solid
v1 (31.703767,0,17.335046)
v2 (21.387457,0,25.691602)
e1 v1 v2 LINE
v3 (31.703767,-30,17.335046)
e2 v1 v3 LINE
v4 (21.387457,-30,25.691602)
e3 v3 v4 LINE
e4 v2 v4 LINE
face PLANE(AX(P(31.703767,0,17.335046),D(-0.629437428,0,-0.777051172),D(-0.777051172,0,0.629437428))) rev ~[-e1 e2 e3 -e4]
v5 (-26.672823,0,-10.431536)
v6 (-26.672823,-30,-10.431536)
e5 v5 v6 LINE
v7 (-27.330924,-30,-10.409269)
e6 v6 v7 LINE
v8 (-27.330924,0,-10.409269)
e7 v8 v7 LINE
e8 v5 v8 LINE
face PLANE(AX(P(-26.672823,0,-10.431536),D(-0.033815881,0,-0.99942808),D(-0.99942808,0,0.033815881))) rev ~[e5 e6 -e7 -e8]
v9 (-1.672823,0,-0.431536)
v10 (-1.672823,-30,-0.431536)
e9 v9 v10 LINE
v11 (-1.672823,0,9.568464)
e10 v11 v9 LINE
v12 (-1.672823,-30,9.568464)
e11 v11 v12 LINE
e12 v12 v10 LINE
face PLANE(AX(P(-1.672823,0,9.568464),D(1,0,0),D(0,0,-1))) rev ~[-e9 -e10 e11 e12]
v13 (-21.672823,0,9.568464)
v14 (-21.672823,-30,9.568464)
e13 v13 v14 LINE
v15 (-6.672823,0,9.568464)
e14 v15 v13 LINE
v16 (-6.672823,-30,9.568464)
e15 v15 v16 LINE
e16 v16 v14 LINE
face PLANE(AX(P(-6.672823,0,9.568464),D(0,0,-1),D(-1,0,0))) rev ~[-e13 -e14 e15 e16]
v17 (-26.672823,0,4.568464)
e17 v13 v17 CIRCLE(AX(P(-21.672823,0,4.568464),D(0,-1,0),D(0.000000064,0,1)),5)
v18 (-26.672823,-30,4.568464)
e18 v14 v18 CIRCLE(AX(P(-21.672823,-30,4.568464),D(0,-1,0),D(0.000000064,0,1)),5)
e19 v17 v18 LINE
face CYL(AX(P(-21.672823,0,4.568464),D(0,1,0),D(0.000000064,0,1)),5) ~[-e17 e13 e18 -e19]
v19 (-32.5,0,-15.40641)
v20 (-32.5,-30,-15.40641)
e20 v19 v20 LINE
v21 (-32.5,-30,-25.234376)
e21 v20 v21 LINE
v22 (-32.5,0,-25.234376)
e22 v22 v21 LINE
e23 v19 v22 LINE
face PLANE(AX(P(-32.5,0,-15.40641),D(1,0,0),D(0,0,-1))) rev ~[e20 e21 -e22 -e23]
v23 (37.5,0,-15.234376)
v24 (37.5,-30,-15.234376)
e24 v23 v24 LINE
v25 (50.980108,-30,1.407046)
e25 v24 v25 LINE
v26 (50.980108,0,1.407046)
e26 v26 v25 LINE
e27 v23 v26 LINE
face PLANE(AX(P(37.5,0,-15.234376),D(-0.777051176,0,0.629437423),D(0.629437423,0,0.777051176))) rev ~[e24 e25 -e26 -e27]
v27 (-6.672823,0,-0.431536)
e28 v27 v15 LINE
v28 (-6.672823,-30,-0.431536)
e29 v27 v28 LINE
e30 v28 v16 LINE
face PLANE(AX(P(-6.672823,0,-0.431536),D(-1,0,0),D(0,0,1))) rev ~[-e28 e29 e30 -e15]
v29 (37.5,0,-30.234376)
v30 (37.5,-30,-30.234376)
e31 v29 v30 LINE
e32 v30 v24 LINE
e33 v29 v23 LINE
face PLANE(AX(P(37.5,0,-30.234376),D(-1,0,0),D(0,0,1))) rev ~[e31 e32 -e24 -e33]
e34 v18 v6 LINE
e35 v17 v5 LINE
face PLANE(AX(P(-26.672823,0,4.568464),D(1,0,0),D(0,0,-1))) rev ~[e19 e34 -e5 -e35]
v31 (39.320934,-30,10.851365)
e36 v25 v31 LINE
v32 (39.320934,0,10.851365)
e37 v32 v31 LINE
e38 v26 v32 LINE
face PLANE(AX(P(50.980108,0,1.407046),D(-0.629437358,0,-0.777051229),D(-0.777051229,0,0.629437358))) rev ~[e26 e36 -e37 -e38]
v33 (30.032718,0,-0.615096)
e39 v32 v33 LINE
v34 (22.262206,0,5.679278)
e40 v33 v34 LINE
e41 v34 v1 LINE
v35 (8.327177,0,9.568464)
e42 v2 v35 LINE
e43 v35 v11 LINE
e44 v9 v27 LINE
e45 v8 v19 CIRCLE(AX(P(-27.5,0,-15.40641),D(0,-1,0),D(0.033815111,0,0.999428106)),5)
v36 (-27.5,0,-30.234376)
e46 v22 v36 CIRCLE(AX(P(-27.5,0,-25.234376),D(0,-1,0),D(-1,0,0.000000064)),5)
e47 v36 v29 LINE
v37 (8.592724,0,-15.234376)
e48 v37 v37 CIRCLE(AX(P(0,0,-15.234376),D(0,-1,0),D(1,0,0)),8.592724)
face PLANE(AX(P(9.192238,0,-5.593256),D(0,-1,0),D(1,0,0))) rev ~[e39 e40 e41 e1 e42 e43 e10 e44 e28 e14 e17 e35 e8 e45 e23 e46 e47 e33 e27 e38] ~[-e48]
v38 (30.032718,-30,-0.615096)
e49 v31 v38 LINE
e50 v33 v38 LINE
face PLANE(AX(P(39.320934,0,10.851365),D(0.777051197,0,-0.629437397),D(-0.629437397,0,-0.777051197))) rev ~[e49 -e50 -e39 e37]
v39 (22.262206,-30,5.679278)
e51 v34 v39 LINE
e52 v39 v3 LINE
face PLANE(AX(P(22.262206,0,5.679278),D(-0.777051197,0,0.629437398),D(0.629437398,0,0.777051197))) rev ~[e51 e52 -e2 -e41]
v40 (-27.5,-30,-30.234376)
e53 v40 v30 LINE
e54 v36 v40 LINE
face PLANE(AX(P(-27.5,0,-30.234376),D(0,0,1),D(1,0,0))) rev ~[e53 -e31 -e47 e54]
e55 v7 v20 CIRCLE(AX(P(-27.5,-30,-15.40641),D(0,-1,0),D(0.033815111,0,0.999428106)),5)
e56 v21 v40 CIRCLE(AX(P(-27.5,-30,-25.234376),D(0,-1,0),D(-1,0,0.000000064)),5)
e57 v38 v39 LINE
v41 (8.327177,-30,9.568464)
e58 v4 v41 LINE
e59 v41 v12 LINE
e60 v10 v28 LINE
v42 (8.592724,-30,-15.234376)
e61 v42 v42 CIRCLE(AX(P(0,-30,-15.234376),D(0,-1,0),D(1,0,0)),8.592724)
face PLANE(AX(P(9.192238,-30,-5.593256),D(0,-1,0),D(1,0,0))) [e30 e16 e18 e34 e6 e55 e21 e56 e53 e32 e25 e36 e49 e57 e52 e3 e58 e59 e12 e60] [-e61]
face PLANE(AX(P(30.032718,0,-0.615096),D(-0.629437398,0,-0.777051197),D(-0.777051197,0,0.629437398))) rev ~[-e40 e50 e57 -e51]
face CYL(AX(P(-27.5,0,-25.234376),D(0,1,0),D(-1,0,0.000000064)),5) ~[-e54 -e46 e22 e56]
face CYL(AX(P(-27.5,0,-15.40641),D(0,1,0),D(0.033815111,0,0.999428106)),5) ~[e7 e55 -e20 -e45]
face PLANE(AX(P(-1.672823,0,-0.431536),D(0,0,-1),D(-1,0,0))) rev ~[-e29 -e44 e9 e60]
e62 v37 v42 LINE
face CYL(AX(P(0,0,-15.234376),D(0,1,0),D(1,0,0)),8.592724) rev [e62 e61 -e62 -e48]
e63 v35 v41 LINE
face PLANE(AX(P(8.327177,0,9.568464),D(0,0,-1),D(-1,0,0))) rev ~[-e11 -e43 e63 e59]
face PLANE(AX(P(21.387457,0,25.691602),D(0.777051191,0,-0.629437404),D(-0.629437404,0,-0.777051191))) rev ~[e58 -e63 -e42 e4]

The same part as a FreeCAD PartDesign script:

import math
import FreeCAD as App
import Part
import Sketcher

V = App.Vector
Q = App.Units.Quantity

doc = App.newDocument("Part")
params = doc.addObject("Spreadsheet::Sheet", "Params")
for row, (alias, value) in enumerate([
    ("sketch1_radius", "5 mm"),
    ("sketch1_width", "65 mm"),
    ("sketch1_width2", "10 mm"),
    ("sketch1_width3", "5 mm"),
    ("sketch1_width4", "15 mm"),
    ("pad1_length", "30 mm"),
], start=1):
    params.set(f"A{row}", alias)
    params.set(f"B{row}", "=" + value)
    params.setAlias(f"B{row}", alias)

body = doc.addObject("PartDesign::Body", "Body")

# Sketch on XZ plane
sketch1 = body.newObject("Sketcher::SketchObject", "Sketch")
sketch1.AttachmentSupport = (doc.getObject("XZ_Plane"), [""])
sketch1.MapMode = "FlatFace"
sketch1.addGeometry(Part.ArcOfCircle(Part.Circle(V(-27.5, -25.2, 0), V(0, 0, 1), 5), math.radians(180), math.radians(270)), False)
sketch1.addGeometry(Part.LineSegment(V(-27.5, -30.2, 0), V(37.5, -30.2, 0)), False)
sketch1.addGeometry(Part.LineSegment(V(37.5, -30.2, 0), V(37.5, -15.2, 0)), False)
sketch1.addGeometry(Part.LineSegment(V(37.5, -15.2, 0), V(51, 1.4, 0)), False)
sketch1.addGeometry(Part.LineSegment(V(51, 1.4, 0), V(39.3, 10.9, 0)), False)
sketch1.addGeometry(Part.LineSegment(V(39.3, 10.9, 0), V(30, -0.6, 0)), False)
sketch1.addGeometry(Part.LineSegment(V(30, -0.6, 0), V(22.3, 5.7, 0)), False)
sketch1.addGeometry(Part.LineSegment(V(22.3, 5.7, 0), V(31.7, 17.3, 0)), False)
sketch1.addGeometry(Part.LineSegment(V(31.7, 17.3, 0), V(21.4, 25.7, 0)), False)
sketch1.addGeometry(Part.LineSegment(V(21.4, 25.7, 0), V(8.3, 9.6, 0)), False)
sketch1.addGeometry(Part.LineSegment(V(8.3, 9.6, 0), V(-1.7, 9.6, 0)), False)
sketch1.addGeometry(Part.LineSegment(V(-1.7, 9.6, 0), V(-1.7, -0.4, 0)), False)
sketch1.addGeometry(Part.LineSegment(V(-1.7, -0.4, 0), V(-6.7, -0.4, 0)), False)
sketch1.addGeometry(Part.LineSegment(V(-6.7, -0.4, 0), V(-6.7, 9.6, 0)), False)
sketch1.addGeometry(Part.LineSegment(V(-6.7, 9.6, 0), V(-21.7, 9.6, 0)), False)
sketch1.addGeometry(Part.ArcOfCircle(Part.Circle(V(-21.7, 4.6, 0), V(0, 0, 1), 5), math.radians(90), math.radians(180)), False)
sketch1.addGeometry(Part.LineSegment(V(-26.7, 4.6, 0), V(-26.7, -10.4, 0)), False)
sketch1.addGeometry(Part.LineSegment(V(-26.7, -10.4, 0), V(-27.3, -10.4, 0)), False)
sketch1.addGeometry(Part.ArcOfCircle(Part.Circle(V(-27.5, -15.4, 0), V(0, 0, 1), 5), math.radians(88), math.radians(180)), False)
sketch1.addGeometry(Part.LineSegment(V(-32.5, -15.4, 0), V(-32.5, -25.2, 0)), False)
sketch1.addGeometry(Part.Circle(V(0, -15.2, 0), V(0, 0, 1), 8.6), False)
sketch1.addConstraint(Sketcher.Constraint("Tangent", 0, 2, 1, 1))
sketch1.addConstraint(Sketcher.Constraint("Coincident", 1, 2, 2, 1))
sketch1.addConstraint(Sketcher.Constraint("Coincident", 2, 2, 3, 1))
sketch1.addConstraint(Sketcher.Constraint("Coincident", 3, 2, 4, 1))
sketch1.addConstraint(Sketcher.Constraint("Coincident", 4, 2, 5, 1))
sketch1.addConstraint(Sketcher.Constraint("Coincident", 5, 2, 6, 1))
sketch1.addConstraint(Sketcher.Constraint("Coincident", 6, 2, 7, 1))
sketch1.addConstraint(Sketcher.Constraint("Coincident", 7, 2, 8, 1))
sketch1.addConstraint(Sketcher.Constraint("Coincident", 8, 2, 9, 1))
sketch1.addConstraint(Sketcher.Constraint("Coincident", 9, 2, 10, 1))
sketch1.addConstraint(Sketcher.Constraint("Coincident", 10, 2, 11, 1))
sketch1.addConstraint(Sketcher.Constraint("Coincident", 11, 2, 12, 1))
sketch1.addConstraint(Sketcher.Constraint("Coincident", 12, 2, 13, 1))
sketch1.addConstraint(Sketcher.Constraint("Coincident", 13, 2, 14, 1))
sketch1.addConstraint(Sketcher.Constraint("Tangent", 14, 2, 15, 1))
sketch1.addConstraint(Sketcher.Constraint("Tangent", 15, 2, 16, 1))
sketch1.addConstraint(Sketcher.Constraint("Coincident", 16, 2, 17, 1))
sketch1.addConstraint(Sketcher.Constraint("Tangent", 17, 2, 18, 1))
sketch1.addConstraint(Sketcher.Constraint("Tangent", 18, 2, 19, 1))
sketch1.addConstraint(Sketcher.Constraint("Tangent", 19, 2, 0, 1))
sketch1.addConstraint(Sketcher.Constraint("Horizontal", 1))
sketch1.addConstraint(Sketcher.Constraint("Vertical", 2))
sketch1.addConstraint(Sketcher.Constraint("Horizontal", 10))
sketch1.addConstraint(Sketcher.Constraint("Vertical", 11))
sketch1.addConstraint(Sketcher.Constraint("Horizontal", 12))
sketch1.addConstraint(Sketcher.Constraint("Vertical", 13))
sketch1.addConstraint(Sketcher.Constraint("Horizontal", 14))
sketch1.addConstraint(Sketcher.Constraint("Vertical", 16))
sketch1.addConstraint(Sketcher.Constraint("Vertical", 19))
sketch1.addConstraint(Sketcher.Constraint("Equal", 0, 15))
sketch1.addConstraint(Sketcher.Constraint("Equal", 15, 18))
sketch1.addConstraint(Sketcher.Constraint("PointOnObject", 20, 3, -2))
sketch1.addConstraint(Sketcher.Constraint("Perpendicular", 3, 4))
sketch1.addConstraint(Sketcher.Constraint("Perpendicular", 4, 5))
sketch1.addConstraint(Sketcher.Constraint("Perpendicular", 5, 6))
sketch1.addConstraint(Sketcher.Constraint("Perpendicular", 6, 7))
sketch1.addConstraint(Sketcher.Constraint("Perpendicular", 7, 8))
sketch1.addConstraint(Sketcher.Constraint("Perpendicular", 8, 9))
sketch1.addConstraint(Sketcher.Constraint("Horizontal", 20, 3, 2, 2))
sketch1.addConstraint(Sketcher.Constraint("Horizontal", 10, 2, 13, 2))
sketch1.addConstraint(Sketcher.Constraint("Equal", 14, 2))
sketch1.addConstraint(Sketcher.Constraint("Equal", 10, 11))
sketch1.addConstraint(Sketcher.Constraint("Equal", 2, 16))
sketch1.addConstraint(Sketcher.Constraint("Radius", 0, Q("5 mm")))
sketch1.addConstraint(Sketcher.Constraint("DistanceX", 1, 1, 1, 2, Q("65 mm")))
sketch1.addConstraint(Sketcher.Constraint("DistanceX", 10, 2, 10, 1, Q("10 mm")))
sketch1.addConstraint(Sketcher.Constraint("DistanceX", 12, 2, 12, 1, Q("5 mm")))
sketch1.addConstraint(Sketcher.Constraint("DistanceX", 14, 2, 14, 1, Q("15 mm")))
sketch1.addConstraint(Sketcher.Constraint("Distance", 6, Q("10 mm")))
sketch1.addConstraint(Sketcher.Constraint("Distance", 7, Q("15 mm")))
sketch1.addConstraint(Sketcher.Constraint("DistanceX", 0, 3, -1, 1, Q("27.5 mm")))
sketch1.addConstraint(Sketcher.Constraint("Diameter", 20, Q("17.185448 mm")))
sketch1.addConstraint(Sketcher.Constraint("DistanceY", 3, 2, 7, 2, Q("15.928 mm")))
sketch1.addConstraint(Sketcher.Constraint("DistanceY", -1, 1, 8, 2, Q("25.691602 mm")))
sketch1.addConstraint(Sketcher.Constraint("DistanceY", 15, 3, 4, 2, Q("6.282901 mm")))
sketch1.addConstraint(Sketcher.Constraint("DistanceY", 5, 2, 8, 2, Q("26.306698 mm")))
sketch1.addConstraint(Sketcher.Constraint("DistanceX", 17, 2, 16, 2, Q("0.658101 mm")))
sketch1.addConstraint(Sketcher.Constraint("Distance", 3, Q("21.416121 mm")))
sketch1.addConstraint(Sketcher.Constraint("Distance", 8, Q("13.27623 mm")))
sketch1.addConstraint(Sketcher.Constraint("DistanceY", 19, 2, 19, 1, Q("9.827966 mm")))
sketch1.setExpression("Constraints[43]", "Params.sketch1_radius")
sketch1.setExpression("Constraints[44]", "Params.sketch1_width")
sketch1.setExpression("Constraints[45]", "Params.sketch1_width2")
sketch1.setExpression("Constraints[46]", "Params.sketch1_width3")
sketch1.setExpression("Constraints[47]", "Params.sketch1_width4")
pad1 = body.newObject("PartDesign::Pad", "Pad")
pad1.Profile = sketch1
pad1.setExpression("Length", "Params.pad1_length")

doc.recompute()
